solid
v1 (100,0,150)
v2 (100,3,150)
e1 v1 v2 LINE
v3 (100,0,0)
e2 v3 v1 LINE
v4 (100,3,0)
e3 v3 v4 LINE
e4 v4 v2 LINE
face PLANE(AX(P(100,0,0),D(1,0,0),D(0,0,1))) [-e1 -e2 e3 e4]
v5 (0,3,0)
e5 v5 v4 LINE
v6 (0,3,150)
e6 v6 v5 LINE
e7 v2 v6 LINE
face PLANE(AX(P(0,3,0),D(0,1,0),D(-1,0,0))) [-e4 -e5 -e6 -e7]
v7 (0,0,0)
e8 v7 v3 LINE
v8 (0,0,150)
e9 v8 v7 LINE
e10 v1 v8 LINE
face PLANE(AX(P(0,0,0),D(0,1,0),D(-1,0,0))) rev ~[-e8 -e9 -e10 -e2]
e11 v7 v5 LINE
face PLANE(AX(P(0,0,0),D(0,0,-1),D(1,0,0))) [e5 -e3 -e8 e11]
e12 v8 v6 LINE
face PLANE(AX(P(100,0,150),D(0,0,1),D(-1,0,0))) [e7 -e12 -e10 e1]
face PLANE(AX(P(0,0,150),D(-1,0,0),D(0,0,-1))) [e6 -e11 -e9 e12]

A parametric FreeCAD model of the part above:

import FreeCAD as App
import Part
import Sketcher
Q = App.Units.Quantity

doc = App.newDocument("Part")
params = doc.addObject("Spreadsheet::Sheet", "Params")
for row, (alias, value) in enumerate([
    ("sketch1_width", "3.937 in"),
    ("pad1_length", "0.1181102 in"),
], start=1):
    params.set(f"A{row}", alias)
    params.set(f"B{row}", "=" + value)
    params.setAlias(f"B{row}", alias)

body = doc.addObject("PartDesign::Body", "Body")

# Sketch on XZ plane
sketch1 = body.newObject("Sketcher::SketchObject", "Sketch")
sketch1.AttachmentSupport = (doc.getObject("XZ_Plane"), [""])
sketch1.MapMode = "FlatFace"
sketch1.addGeometry(Part.LineSegment(App.Vector(100, 0, 0), App.Vector(0, 0, 0)), False)
sketch1.addGeometry(Part.LineSegment(App.Vector(0, 0, 0), App.Vector(0, 150, 0)), False)
sketch1.addGeometry(Part.LineSegment(App.Vector(0, 150, 0), App.Vector(100, 150, 0)), False)
sketch1.addGeometry(Part.LineSegment(App.Vector(100, 150, 0), App.Vector(100, 0, 0)), False)
sketch1.addConstraint(Sketcher.Constraint("Coincident", 0, 2, 1, 1))
sketch1.addConstraint(Sketcher.Constraint("Coincident", 1, 2, 2, 1))
sketch1.addConstraint(Sketcher.Constraint("Coincident", 2, 2, 3, 1))
sketch1.addConstraint(Sketcher.Constraint("Coincident", 3, 2, 0, 1))
sketch1.addConstraint(Sketcher.Constraint("Horizontal", 0))
sketch1.addConstraint(Sketcher.Constraint("Vertical", 1))
sketch1.addConstraint(Sketcher.Constraint("Horizontal", 2))
sketch1.addConstraint(Sketcher.Constraint("Vertical", 3))
sketch1.addConstraint(Sketcher.Constraint("Coincident", 0, 2, -1, 1))
sketch1.addConstraint(Sketcher.Constraint("DistanceX", 0, 2, 0, 1, Q("3.937 in")))
sketch1.addConstraint(Sketcher.Constraint("DistanceY", 1, 1, 1, 2, Q("5.9055 in")))
sketch1.setExpression("Constraints[9]", "Params.sketch1_width")
pad1 = body.newObject("PartDesign::Pad", "Pad")
pad1.Profile = sketch1
pad1.setExpression("Length", "Params.pad1_length")
pad1.Reversed = True

doc.recompute()
